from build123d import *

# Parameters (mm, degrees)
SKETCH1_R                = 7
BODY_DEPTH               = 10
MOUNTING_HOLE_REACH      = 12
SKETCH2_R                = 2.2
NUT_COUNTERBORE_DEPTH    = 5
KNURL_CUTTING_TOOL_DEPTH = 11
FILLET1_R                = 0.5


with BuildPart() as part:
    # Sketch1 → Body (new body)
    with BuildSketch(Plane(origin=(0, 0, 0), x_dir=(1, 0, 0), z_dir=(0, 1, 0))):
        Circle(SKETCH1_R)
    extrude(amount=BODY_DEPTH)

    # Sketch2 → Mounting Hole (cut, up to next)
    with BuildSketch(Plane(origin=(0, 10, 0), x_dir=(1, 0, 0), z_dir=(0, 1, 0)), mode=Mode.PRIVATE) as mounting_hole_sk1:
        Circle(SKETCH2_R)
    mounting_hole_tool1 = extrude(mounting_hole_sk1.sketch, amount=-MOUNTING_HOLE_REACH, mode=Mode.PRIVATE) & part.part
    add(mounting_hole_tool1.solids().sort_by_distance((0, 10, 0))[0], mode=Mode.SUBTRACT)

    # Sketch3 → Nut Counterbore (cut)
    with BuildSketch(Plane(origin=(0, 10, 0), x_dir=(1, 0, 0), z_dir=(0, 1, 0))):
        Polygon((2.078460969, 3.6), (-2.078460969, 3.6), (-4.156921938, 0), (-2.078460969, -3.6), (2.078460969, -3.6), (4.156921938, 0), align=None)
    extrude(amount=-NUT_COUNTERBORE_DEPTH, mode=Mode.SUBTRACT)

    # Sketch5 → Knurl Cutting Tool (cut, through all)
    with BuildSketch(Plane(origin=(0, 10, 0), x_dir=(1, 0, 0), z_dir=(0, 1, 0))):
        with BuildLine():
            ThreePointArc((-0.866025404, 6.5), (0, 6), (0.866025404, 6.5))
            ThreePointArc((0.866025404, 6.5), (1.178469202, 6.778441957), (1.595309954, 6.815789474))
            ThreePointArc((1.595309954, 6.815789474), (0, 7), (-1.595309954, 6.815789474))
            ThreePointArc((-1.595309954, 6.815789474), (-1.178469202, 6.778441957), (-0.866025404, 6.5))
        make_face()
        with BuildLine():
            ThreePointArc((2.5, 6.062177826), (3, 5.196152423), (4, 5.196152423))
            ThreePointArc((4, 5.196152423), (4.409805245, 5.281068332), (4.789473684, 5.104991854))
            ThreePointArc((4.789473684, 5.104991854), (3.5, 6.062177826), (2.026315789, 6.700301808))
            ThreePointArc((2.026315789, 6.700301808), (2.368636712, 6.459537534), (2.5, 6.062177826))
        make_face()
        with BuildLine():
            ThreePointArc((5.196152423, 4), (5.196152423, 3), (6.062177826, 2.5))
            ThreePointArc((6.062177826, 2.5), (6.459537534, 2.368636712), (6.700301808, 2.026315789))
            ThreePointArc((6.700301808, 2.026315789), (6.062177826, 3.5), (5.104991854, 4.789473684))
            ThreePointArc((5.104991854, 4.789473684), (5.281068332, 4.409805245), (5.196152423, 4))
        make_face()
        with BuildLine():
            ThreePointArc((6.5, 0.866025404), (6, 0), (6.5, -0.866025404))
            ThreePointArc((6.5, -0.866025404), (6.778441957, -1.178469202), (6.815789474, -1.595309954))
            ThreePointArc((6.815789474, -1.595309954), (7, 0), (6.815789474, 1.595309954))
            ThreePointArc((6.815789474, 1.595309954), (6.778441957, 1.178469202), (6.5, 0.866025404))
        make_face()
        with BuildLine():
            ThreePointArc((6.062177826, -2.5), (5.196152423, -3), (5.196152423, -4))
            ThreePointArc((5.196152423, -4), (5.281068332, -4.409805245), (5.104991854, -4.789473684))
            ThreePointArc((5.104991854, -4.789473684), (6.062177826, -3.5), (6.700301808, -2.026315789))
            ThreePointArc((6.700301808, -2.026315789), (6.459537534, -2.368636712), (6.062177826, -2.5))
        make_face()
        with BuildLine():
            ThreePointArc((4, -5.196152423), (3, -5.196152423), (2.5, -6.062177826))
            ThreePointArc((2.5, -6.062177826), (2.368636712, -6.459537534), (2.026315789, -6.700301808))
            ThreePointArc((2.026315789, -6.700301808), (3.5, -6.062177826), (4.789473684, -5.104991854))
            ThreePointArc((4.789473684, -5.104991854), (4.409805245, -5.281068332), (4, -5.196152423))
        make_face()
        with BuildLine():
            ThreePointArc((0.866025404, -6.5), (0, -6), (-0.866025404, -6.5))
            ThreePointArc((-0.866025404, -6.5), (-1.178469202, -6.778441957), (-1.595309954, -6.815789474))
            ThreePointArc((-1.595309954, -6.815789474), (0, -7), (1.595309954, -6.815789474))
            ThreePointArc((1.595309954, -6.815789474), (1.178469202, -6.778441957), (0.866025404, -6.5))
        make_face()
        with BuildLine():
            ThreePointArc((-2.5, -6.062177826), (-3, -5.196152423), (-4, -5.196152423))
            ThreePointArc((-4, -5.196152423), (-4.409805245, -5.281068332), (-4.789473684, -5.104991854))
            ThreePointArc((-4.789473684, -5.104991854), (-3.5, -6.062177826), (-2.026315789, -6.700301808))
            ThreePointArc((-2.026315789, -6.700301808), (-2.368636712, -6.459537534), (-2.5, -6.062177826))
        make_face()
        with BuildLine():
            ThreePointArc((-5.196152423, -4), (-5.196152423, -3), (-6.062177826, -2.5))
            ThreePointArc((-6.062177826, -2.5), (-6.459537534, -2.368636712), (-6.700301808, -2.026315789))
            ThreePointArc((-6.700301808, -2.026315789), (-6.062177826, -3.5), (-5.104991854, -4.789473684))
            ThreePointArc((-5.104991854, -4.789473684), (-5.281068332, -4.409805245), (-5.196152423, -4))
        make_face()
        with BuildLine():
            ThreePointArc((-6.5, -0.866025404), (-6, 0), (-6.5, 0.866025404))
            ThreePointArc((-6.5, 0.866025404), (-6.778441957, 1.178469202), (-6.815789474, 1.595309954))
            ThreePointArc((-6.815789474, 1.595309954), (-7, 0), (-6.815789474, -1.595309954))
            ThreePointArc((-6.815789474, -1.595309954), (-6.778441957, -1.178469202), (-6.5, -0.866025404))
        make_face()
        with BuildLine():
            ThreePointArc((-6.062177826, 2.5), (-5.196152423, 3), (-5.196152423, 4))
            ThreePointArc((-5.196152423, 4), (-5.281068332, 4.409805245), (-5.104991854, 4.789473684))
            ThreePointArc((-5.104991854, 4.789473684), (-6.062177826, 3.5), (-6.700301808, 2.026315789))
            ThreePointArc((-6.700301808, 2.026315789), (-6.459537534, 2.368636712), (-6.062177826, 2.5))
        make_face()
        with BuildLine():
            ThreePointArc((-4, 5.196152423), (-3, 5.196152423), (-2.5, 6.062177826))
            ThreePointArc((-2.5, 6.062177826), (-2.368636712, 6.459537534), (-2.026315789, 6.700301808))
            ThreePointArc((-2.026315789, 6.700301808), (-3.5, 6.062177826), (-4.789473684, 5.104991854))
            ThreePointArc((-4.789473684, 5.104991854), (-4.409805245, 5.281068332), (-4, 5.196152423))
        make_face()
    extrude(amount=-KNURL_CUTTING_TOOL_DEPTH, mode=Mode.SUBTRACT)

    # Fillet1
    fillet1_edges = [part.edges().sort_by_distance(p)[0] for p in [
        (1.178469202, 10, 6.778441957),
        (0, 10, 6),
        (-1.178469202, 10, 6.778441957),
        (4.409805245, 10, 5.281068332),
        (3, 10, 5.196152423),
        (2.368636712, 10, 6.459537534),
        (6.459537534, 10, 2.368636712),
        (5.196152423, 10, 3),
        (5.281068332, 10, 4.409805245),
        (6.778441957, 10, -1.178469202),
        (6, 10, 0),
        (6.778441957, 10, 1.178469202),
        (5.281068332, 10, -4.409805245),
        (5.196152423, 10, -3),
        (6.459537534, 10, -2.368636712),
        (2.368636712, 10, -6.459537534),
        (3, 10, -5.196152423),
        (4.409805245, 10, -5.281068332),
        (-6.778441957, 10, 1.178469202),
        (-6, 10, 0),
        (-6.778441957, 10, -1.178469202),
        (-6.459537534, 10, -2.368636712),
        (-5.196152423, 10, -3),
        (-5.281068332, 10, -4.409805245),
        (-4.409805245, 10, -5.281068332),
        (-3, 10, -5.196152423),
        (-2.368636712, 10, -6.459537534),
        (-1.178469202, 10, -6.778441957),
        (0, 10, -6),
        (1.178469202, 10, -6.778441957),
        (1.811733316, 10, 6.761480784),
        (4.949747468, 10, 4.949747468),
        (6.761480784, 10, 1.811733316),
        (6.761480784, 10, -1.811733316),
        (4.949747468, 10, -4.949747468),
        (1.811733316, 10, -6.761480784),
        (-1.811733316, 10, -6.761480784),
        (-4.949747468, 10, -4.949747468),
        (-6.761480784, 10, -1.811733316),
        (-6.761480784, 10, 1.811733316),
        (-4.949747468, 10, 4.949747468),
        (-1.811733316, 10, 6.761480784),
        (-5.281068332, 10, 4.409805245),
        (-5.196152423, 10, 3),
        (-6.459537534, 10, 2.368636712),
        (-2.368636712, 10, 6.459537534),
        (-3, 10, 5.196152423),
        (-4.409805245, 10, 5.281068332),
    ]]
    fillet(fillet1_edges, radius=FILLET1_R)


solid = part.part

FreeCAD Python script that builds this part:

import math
import FreeCAD as App
import Part
import Sketcher
Q = App.Units.Quantity


def edges_at(feature, points):
    """Names of the edges that pass closest to the given points."""
    edges = feature.Shape.Edges
    near = lambda p: min(range(len(edges)), key=lambda i: edges[i].distToShape(Part.Vertex(*p))[0])
    return sorted({f"Edge{near(p) + 1}" for p in points})

doc = App.newDocument("Part")
body = doc.addObject("PartDesign::Body", "Body")

# Sketch on XZ plane
sketch1 = body.newObject("Sketcher::SketchObject", "Sketch")
sketch1.AttachmentSupport = (doc.getObject("XZ_Plane"), [""])
sketch1.MapMode = "FlatFace"
sketch1.addGeometry(Part.Circle(App.Vector(0, 0, 0), App.Vector(0, 0, 1), 7), False)
sketch1.addConstraint([
    Sketcher.Constraint("Coincident", 0, 3, -1, 1),
    Sketcher.Constraint("Diameter", 0, 14.0),
])
pad1 = body.newObject("PartDesign::Pad", "Pad")
pad1.Profile = sketch1
pad1.Length = 10
pad1.Reversed = True

# Sketch on XZ plane
sketch2 = body.newObject("Sketcher::SketchObject", "Sketch001")
sketch2.AttachmentSupport = (doc.getObject("XZ_Plane"), [""])
sketch2.MapMode = "FlatFace"
sketch2.AttachmentOffset = App.Placement(App.Vector(0, 0, -10), App.Rotation())
sketch2.addGeometry(Part.Circle(App.Vector(0, 0, 0), App.Vector(0, 0, 1), 2.2), False)
sketch2.addConstraint([
    Sketcher.Constraint("Coincident", 0, 3, -1, 1),
    Sketcher.Constraint("Diameter", 0, 4.4),
])
pocket1 = body.newObject("PartDesign::Pocket", "Pocket")
pocket1.Profile = sketch2
pocket1.Type = "UpToFirst"
pocket1.Reversed = True

# Sketch on XZ plane
sketch3 = body.newObject("Sketcher::SketchObject", "Sketch002")
sketch3.AttachmentSupport = (doc.getObject("XZ_Plane"), [""])
sketch3.MapMode = "FlatFace"
sketch3.AttachmentOffset = App.Placement(App.Vector(0, 0, -10), App.Rotation())
sketch3.addGeometry([
    Part.LineSegment(App.Vector(2.1, -3.6, 0), App.Vector(-2.1, -3.6, 0)),  # 0
    Part.LineSegment(App.Vector(-2.1, -3.6, 0), App.Vector(-4.2, 0, 0)),  # 1
    Part.LineSegment(App.Vector(-4.2, 0, 0), App.Vector(-2.1, 3.6, 0)),  # 2
    Part.LineSegment(App.Vector(-2.1, 3.6, 0), App.Vector(2.1, 3.6, 0)),  # 3
    Part.LineSegment(App.Vector(2.1, 3.6, 0), App.Vector(4.2, 0, 0)),  # 4
    Part.LineSegment(App.Vector(4.2, 0, 0), App.Vector(2.1, -3.6, 0)),  # 5
], False)
sketch3.addConstraint([
    Sketcher.Constraint("Coincident", 0, 2, 1, 1),
    Sketcher.Constraint("Coincident", 1, 2, 2, 1),
    Sketcher.Constraint("Coincident", 2, 2, 3, 1),
    Sketcher.Constraint("Coincident", 3, 2, 4, 1),
    Sketcher.Constraint("Coincident", 4, 2, 5, 1),
    Sketcher.Constraint("Coincident", 5, 2, 0, 1),
    Sketcher.Constraint("Horizontal", 0),
    Sketcher.Constraint("Horizontal", 3),
    Sketcher.Constraint("Symmetric", 0, 2, 3, 2, -1, 1),
    Sketcher.Constraint("Symmetric", 1, 2, 4, 2, -1, 1),
    Sketcher.Constraint("PointOnObject", 1, 2, -1),
    Sketcher.Constraint("Parallel", 2, 5),
    Sketcher.Constraint("Vertical", 0, 2, 2, 2),
    Sketcher.Constraint("Angle", 1, Q("120 deg")),
    Sketcher.Constraint("DistanceY", 0, 2, -1, 1, 3.6),
    Sketcher.Constraint("DistanceX", 0, 2, 0, 1, 4.156922),
])
pocket2 = body.newObject("PartDesign::Pocket", "Pocket001")
pocket2.Profile = sketch3
pocket2.Length = 5
pocket2.Reversed = True

# Sketch on XZ plane
sketch4 = body.newObject("Sketcher::SketchObject", "Sketch003")
sketch4.AttachmentSupport = (doc.getObject("XZ_Plane"), [""])
sketch4.MapMode = "FlatFace"
sketch4.AttachmentOffset = App.Placement(App.Vector(0, 0, -10), App.Rotation())
sketch4.addGeometry([
    Part.ArcOfCircle(Part.Circle(App.Vector(0, -7, 0), App.Vector(0, 0, 1), 1), math.radians(30), math.radians(150)),  # 0
    Part.ArcOfCircle(Part.Circle(App.Vector(1.4, -6.2, 0), App.Vector(0, 0, 1), 0.7), math.radians(-150), math.radians(-77)),  # 1
    Part.ArcOfCircle(Part.Circle(App.Vector(0, 0, 0), App.Vector(0, 0, 1), 7), math.radians(-103), math.radians(-77)),  # 2
    Part.ArcOfCircle(Part.Circle(App.Vector(-1.4, -6.2, 0), App.Vector(0, 0, 1), 0.7), math.radians(-103), math.radians(-30)),  # 3
    Part.ArcOfCircle(Part.Circle(App.Vector(3.5, -6.1, 0), App.Vector(0, 0, 1), 1), math.radians(60), math.radians(180)),  # 4
    Part.ArcOfCircle(Part.Circle(App.Vector(4.3, -4.6, 0), App.Vector(0, 0, 1), 0.7), math.radians(-120), math.radians(-47)),  # 5
    Part.ArcOfCircle(Part.Circle(App.Vector(0, 0, 0), App.Vector(0, 0, 1), 7), math.radians(-73), math.radians(-47)),  # 6
    Part.ArcOfCircle(Part.Circle(App.Vector(1.8, -6.1, 0), App.Vector(0, 0, 1), 0.7), math.radians(-73), math.radians(0)),  # 7
    Part.ArcOfCircle(Part.Circle(App.Vector(6.1, -3.5, 0), App.Vector(0, 0, 1), 1), math.radians(90), math.radians(210)),  # 8
    Part.ArcOfCircle(Part.Circle(App.Vector(6.1, -1.8, 0), App.Vector(0, 0, 1), 0.7), math.radians(-90), math.radians(-17)),  # 9
    Part.ArcOfCircle(Part.Circle(App.Vector(0, 0, 0), App.Vector(0, 0, 1), 7), math.radians(-43), math.radians(-17)),  # 10
    Part.ArcOfCircle(Part.Circle(App.Vector(4.6, -4.3, 0), App.Vector(0, 0, 1), 0.7), math.radians(-43), math.radians(30)),  # 11
    Part.ArcOfCircle(Part.Circle(App.Vector(7, 0, 0), App.Vector(0, 0, 1), 1), math.radians(120), math.radians(240)),  # 12
    Part.ArcOfCircle(Part.Circle(App.Vector(6.2, 1.4, 0), App.Vector(0, 0, 1), 0.7), math.radians(-60), math.radians(13)),  # 13
    Part.ArcOfCircle(Part.Circle(App.Vector(0, 0, 0), App.Vector(0, 0, 1), 7), math.radians(-13), math.radians(13)),  # 14
    Part.ArcOfCircle(Part.Circle(App.Vector(6.2, -1.4, 0), App.Vector(0, 0, 1), 0.7), math.radians(-13), math.radians(60)),  # 15
    Part.ArcOfCircle(Part.Circle(App.Vector(6.1, 3.5, 0), App.Vector(0, 0, 1), 1), math.radians(150), math.radians(270)),  # 16
    Part.ArcOfCircle(Part.Circle(App.Vector(4.6, 4.3, 0), App.Vector(0, 0, 1), 0.7), math.radians(-30), math.radians(43)),  # 17
    Part.ArcOfCircle(Part.Circle(App.Vector(0, 0, 0), App.Vector(0, 0, 1), 7), math.radians(17), math.radians(43)),  # 18
    Part.ArcOfCircle(Part.Circle(App.Vector(6.1, 1.8, 0), App.Vector(0, 0, 1), 0.7), math.radians(17), math.radians(90)),  # 19
    Part.ArcOfCircle(Part.Circle(App.Vector(3.5, 6.1, 0), App.Vector(0, 0, 1), 1), math.radians(-180), math.radians(-60)),  # 20
    Part.ArcOfCircle(Part.Circle(App.Vector(1.8, 6.1, 0), App.Vector(0, 0, 1), 0.7), math.radians(0), math.radians(73)),  # 21
    Part.ArcOfCircle(Part.Circle(App.Vector(0, 0, 0), App.Vector(0, 0, 1), 7), math.radians(47), math.radians(73)),  # 22
    Part.ArcOfCircle(Part.Circle(App.Vector(4.3, 4.6, 0), App.Vector(0, 0, 1), 0.7), math.radians(47), math.radians(120)),  # 23
    Part.ArcOfCircle(Part.Circle(App.Vector(0, 7, 0), App.Vector(0, 0, 1), 1), math.radians(-150), math.radians(-30)),  # 24
    Part.ArcOfCircle(Part.Circle(App.Vector(-1.4, 6.2, 0), App.Vector(0, 0, 1), 0.7), math.radians(30), math.radians(103)),  # 25
    Part.ArcOfCircle(Part.Circle(App.Vector(0, 0, 0), App.Vector(0, 0, 1), 7), math.radians(77), math.radians(103)),  # 26
    Part.ArcOfCircle(Part.Circle(App.Vector(1.4, 6.2, 0), App.Vector(0, 0, 1), 0.7), math.radians(77), math.radians(150)),  # 27
    Part.ArcOfCircle(Part.Circle(App.Vector(-3.5, 6.1, 0), App.Vector(0, 0, 1), 1), math.radians(-120), math.radians(0)),  # 28
    Part.ArcOfCircle(Part.Circle(App.Vector(-4.3, 4.6, 0), App.Vector(0, 0, 1), 0.7), math.radians(60), math.radians(133)),  # 29
    Part.ArcOfCircle(Part.Circle(App.Vector(0, 0, 0), App.Vector(0, 0, 1), 7), math.radians(107), math.radians(133)),  # 30
    Part.ArcOfCircle(Part.Circle(App.Vector(-1.8, 6.1, 0), App.Vector(0, 0, 1), 0.7), math.radians(107), math.radians(180)),  # 31
    Part.ArcOfCircle(Part.Circle(App.Vector(-6.1, 3.5, 0), App.Vector(0, 0, 1), 1), math.radians(-90), math.radians(30)),  # 32
    Part.ArcOfCircle(Part.Circle(App.Vector(-6.1, 1.8, 0), App.Vector(0, 0, 1), 0.7), math.radians(90), math.radians(163)),  # 33
    Part.ArcOfCircle(Part.Circle(App.Vector(0, 0, 0), App.Vector(0, 0, 1), 7), math.radians(137), math.radians(163)),  # 34
    Part.ArcOfCircle(Part.Circle(App.Vector(-4.6, 4.3, 0), App.Vector(0, 0, 1), 0.7), math.radians(137), math.radians(210)),  # 35
    Part.ArcOfCircle(Part.Circle(App.Vector(-7, 0, 0), App.Vector(0, 0, 1), 1), math.radians(-60), math.radians(60)),  # 36
    Part.ArcOfCircle(Part.Circle(App.Vector(-6.2, -1.4, 0), App.Vector(0, 0, 1), 0.7), math.radians(120), math.radians(193)),  # 37
    Part.ArcOfCircle(Part.Circle(App.Vector(0, 0, 0), App.Vector(0, 0, 1), 7), math.radians(167), math.radians(193)),  # 38
    Part.ArcOfCircle(Part.Circle(App.Vector(-6.2, 1.4, 0), App.Vector(0, 0, 1), 0.7), math.radians(167), math.radians(240)),  # 39
    Part.ArcOfCircle(Part.Circle(App.Vector(-6.1, -3.5, 0), App.Vector(0, 0, 1), 1), math.radians(-30), math.radians(90)),  # 40
    Part.ArcOfCircle(Part.Circle(App.Vector(-4.6, -4.3, 0), App.Vector(0, 0, 1), 0.7), math.radians(150), math.radians(223)),  # 41
    Part.ArcOfCircle(Part.Circle(App.Vector(0, 0, 0), App.Vector(0, 0, 1), 7), math.radians(-163), math.radians(-137)),  # 42
    Part.ArcOfCircle(Part.Circle(App.Vector(-6.1, -1.8, 0), App.Vector(0, 0, 1), 0.7), math.radians(-163), math.radians(-90)),  # 43
    Part.ArcOfCircle(Part.Circle(App.Vector(-3.5, -6.1, 0), App.Vector(0, 0, 1), 1), math.radians(0), math.radians(120)),  # 44
    Part.ArcOfCircle(Part.Circle(App.Vector(-1.8, -6.1, 0), App.Vector(0, 0, 1), 0.7), math.radians(180), math.radians(253)),  # 45
    Part.ArcOfCircle(Part.Circle(App.Vector(0, 0, 0), App.Vector(0, 0, 1), 7), math.radians(-133), math.radians(-107)),  # 46
    Part.ArcOfCircle(Part.Circle(App.Vector(-4.3, -4.6, 0), App.Vector(0, 0, 1), 0.7), math.radians(-133), math.radians(-60)),  # 47
], False)
sketch4.addConstraint([
    Sketcher.Constraint("Tangent", 0, 1, 1, 1),
    Sketcher.Constraint("Tangent", 1, 2, 2, 2),
    Sketcher.Constraint("Tangent", 2, 1, 3, 1),
    Sketcher.Constraint("Tangent", 3, 2, 0, 2),
    Sketcher.Constraint("Tangent", 4, 1, 5, 1),
    Sketcher.Constraint("Tangent", 5, 2, 6, 2),
    Sketcher.Constraint("Tangent", 6, 1, 7, 1),
    Sketcher.Constraint("Tangent", 7, 2, 4, 2),
    Sketcher.Constraint("Tangent", 8, 1, 9, 1),
    Sketcher.Constraint("Tangent", 9, 2, 10, 2),
    Sketcher.Constraint("Tangent", 10, 1, 11, 1),
    Sketcher.Constraint("Tangent", 11, 2, 8, 2),
    Sketcher.Constraint("Tangent", 12, 1, 13, 1),
    Sketcher.Constraint("Tangent", 13, 2, 14, 2),
    Sketcher.Constraint("Tangent", 14, 1, 15, 1),
    Sketcher.Constraint("Tangent", 15, 2, 12, 2),
    Sketcher.Constraint("Tangent", 16, 1, 17, 1),
    Sketcher.Constraint("Tangent", 17, 2, 18, 2),
    Sketcher.Constraint("Tangent", 18, 1, 19, 1),
    Sketcher.Constraint("Tangent", 19, 2, 16, 2),
    Sketcher.Constraint("Tangent", 20, 1, 21, 1),
    Sketcher.Constraint("Tangent", 21, 2, 22, 2),
    Sketcher.Constraint("Tangent", 22, 1, 23, 1),
    Sketcher.Constraint("Tangent", 23, 2, 20, 2),
    Sketcher.Constraint("Tangent", 24, 1, 25, 1),
    Sketcher.Constraint("Tangent", 25, 2, 26, 2),
    Sketcher.Constraint("Tangent", 26, 1, 27, 1),
    Sketcher.Constraint("Tangent", 27, 2, 24, 2),
    Sketcher.Constraint("Tangent", 28, 1, 29, 1),
    Sketcher.Constraint("Tangent", 29, 2, 30, 2),
    Sketcher.Constraint("Tangent", 30, 1, 31, 1),
    Sketcher.Constraint("Tangent", 31, 2, 28, 2),
    Sketcher.Constraint("Tangent", 32, 1, 33, 1),
    Sketcher.Constraint("Tangent", 33, 2, 34, 2),
    Sketcher.Constraint("Tangent", 34, 1, 35, 1),
    Sketcher.Constraint("Tangent", 35, 2, 32, 2),
    Sketcher.Constraint("Tangent", 36, 1, 37, 1),
    Sketcher.Constraint("Tangent", 37, 2, 38, 2),
    Sketcher.Constraint("Tangent", 38, 1, 39, 1),
    Sketcher.Constraint("Tangent", 39, 2, 36, 2),
    Sketcher.Constraint("Tangent", 40, 1, 41, 1),
    Sketcher.Constraint("Tangent", 41, 2, 42, 2),
    Sketcher.Constraint("Tangent", 42, 1, 43, 1),
    Sketcher.Constraint("Tangent", 43, 2, 40, 2),
    Sketcher.Constraint("Tangent", 44, 1, 45, 1),
    Sketcher.Constraint("Tangent", 45, 2, 46, 2),
    Sketcher.Constraint("Tangent", 46, 1, 47, 1),
    Sketcher.Constraint("Tangent", 47, 2, 44, 2),
    Sketcher.Constraint("Coincident", 2, 3, -1, 1),
    Sketcher.Constraint("Coincident", 6, 3, -1, 1),
    Sketcher.Constraint("Coincident", 10, 3, -1, 1),
    Sketcher.Constraint("Coincident", 14, 3, -1, 1),
    Sketcher.Constraint("Coincident", 18, 3, -1, 1),
    Sketcher.Constraint("Coincident", 22, 3, -1, 1),
    Sketcher.Constraint("Coincident", 26, 3, -1, 1),
    Sketcher.Constraint("Coincident", 30, 3, -1, 1),
    Sketcher.Constraint("Coincident", 34, 3, -1, 1),
    Sketcher.Constraint("Coincident", 38, 3, -1, 1),
    Sketcher.Constraint("Coincident", 42, 3, -1, 1),
    Sketcher.Constraint("Coincident", 46, 3, -1, 1),
    Sketcher.Constraint("Equal", 1, 3),
    Sketcher.Constraint("Equal", 0, 4),
    Sketcher.Constraint("Equal", 3, 5),
    Sketcher.Constraint("Equal", 2, 6),
    Sketcher.Constraint("Equal", 5, 7),
    Sketcher.Constraint("Equal", 4, 8),
    Sketcher.Constraint("Equal", 7, 9),
    Sketcher.Constraint("Equal", 6, 10),
    Sketcher.Constraint("Equal", 9, 11),
    Sketcher.Constraint("Equal", 8, 12),
    Sketcher.Constraint("Equal", 11, 13),
    Sketcher.Constraint("Equal", 10, 14),
    Sketcher.Constraint("Equal", 13, 15),
    Sketcher.Constraint("Equal", 12, 16),
    Sketcher.Constraint("Equal", 15, 17),
    Sketcher.Constraint("Equal", 14, 18),
    Sketcher.Constraint("Equal", 17, 19),
    Sketcher.Constraint("Equal", 16, 20),
    Sketcher.Constraint("Equal", 19, 21),
    Sketcher.Constraint("Equal", 18, 22),
    Sketcher.Constraint("Equal", 21, 23),
    Sketcher.Constraint("Equal", 20, 24),
    Sketcher.Constraint("Equal", 23, 25),
    Sketcher.Constraint("Equal", 22, 26),
    Sketcher.Constraint("Equal", 25, 27),
    Sketcher.Constraint("Equal", 24, 28),
    Sketcher.Constraint("Equal", 27, 29),
    Sketcher.Constraint("Equal", 26, 30),
    Sketcher.Constraint("Equal", 29, 31),
    Sketcher.Constraint("Equal", 28, 32),
    Sketcher.Constraint("Equal", 31, 33),
    Sketcher.Constraint("Equal", 30, 34),
    Sketcher.Constraint("Equal", 33, 35),
    Sketcher.Constraint("Equal", 32, 36),
    Sketcher.Constraint("Equal", 35, 37),
    Sketcher.Constraint("Equal", 34, 38),
    Sketcher.Constraint("Equal", 37, 39),
    Sketcher.Constraint("Equal", 36, 40),
    Sketcher.Constraint("Equal", 39, 41),
    Sketcher.Constraint("Equal", 38, 42),
    Sketcher.Constraint("Equal", 41, 43),
    Sketcher.Constraint("Equal", 40, 44),
    Sketcher.Constraint("Equal", 43, 45),
    Sketcher.Constraint("Equal", 42, 46),
    Sketcher.Constraint("Equal", 45, 47),
    Sketcher.Constraint("Symmetric", 0, 3, 24, 3, -1, 1),
    Sketcher.Constraint("Symmetric", 4, 3, 28, 3, -1, 1),
    Sketcher.Constraint("Symmetric", 8, 3, 32, 3, -1, 1),
    Sketcher.Constraint("Symmetric", 12, 3, 36, 3, -1, 1),
    Sketcher.Constraint("Symmetric", 16, 3, 40, 3, -1, 1),
    Sketcher.Constraint("Symmetric", 20, 3, 44, 3, -1, 1),
    Sketcher.Constraint("Symmetric", 20, 3, 28, 3, -2),
    Sketcher.Constraint("Symmetric", 16, 3, 32, 3, -2),
    Sketcher.Constraint("PointOnObject", 0, 3, -2),
    Sketcher.Constraint("PointOnObject", 12, 3, -1),
    Sketcher.Constraint("Horizontal", 4, 3, 7, 3),
    Sketcher.Constraint("Vertical", 8, 3, 9, 3),
    Sketcher.Constraint("Radius", 0, 1.0),
    Sketcher.Constraint("Radius", 2, 7.0),
    Sketcher.Constraint("DistanceY", 0, 3, -1, 1, 7.0),
    Sketcher.Constraint("DistanceX", -1, 1, 12, 3, 7.0),
    Sketcher.Constraint("DistanceX", -1, 1, 4, 1, 4.0),
    Sketcher.Constraint("DistanceY", 11, 2, -1, 1, 4.0),
    Sketcher.Constraint("DistanceX", -1, 1, 4, 3, 3.5),
])
pocket3 = body.newObject("PartDesign::Pocket", "Pocket002")
pocket3.Profile = sketch4
pocket3.Type = "ThroughAll"
pocket3.Reversed = True
doc.recompute()

fillet = body.newObject("PartDesign::Fillet", "Fillet")
fillet.Base = (pocket3, edges_at(pocket3, [
    (1.178, 10, 6.778),
    (0, 10, 6),
    (-1.178, 10, 6.778),
    (4.41, 10, 5.281),
    (3, 10, 5.196),
    (2.369, 10, 6.46),
    (6.46, 10, 2.369),
    (5.196, 10, 3),
    (5.281, 10, 4.41),
    (6.778, 10, -1.178),
    (6, 10, 0),
    (6.778, 10, 1.178),
    (5.281, 10, -4.41),
    (5.196, 10, -3),
    (6.46, 10, -2.369),
    (2.369, 10, -6.46),
    (3, 10, -5.196),
    (4.41, 10, -5.281),
    (-6.778, 10, 1.178),
    (-6, 10, 0),
    (-6.778, 10, -1.178),
    (-6.46, 10, -2.369),
    (-5.196, 10, -3),
    (-5.281, 10, -4.41),
    (-4.41, 10, -5.281),
    (-3, 10, -5.196),
    (-2.369, 10, -6.46),
    (-1.178, 10, -6.778),
    (0, 10, -6),
    (1.178, 10, -6.778),
    (1.812, 10, 6.761),
    (4.95, 10, 4.95),
    (6.761, 10, 1.812),
    (6.761, 10, -1.812),
    (4.95, 10, -4.95),
    (1.812, 10, -6.761),
    (-1.812, 10, -6.761),
    (-4.95, 10, -4.95),
    (-6.761, 10, -1.812),
    (-6.761, 10, 1.812),
    (-4.95, 10, 4.95),
    (-1.812, 10, 6.761),
    (-5.281, 10, 4.41),
    (-5.196, 10, 3),
    (-6.46, 10, 2.369),
    (-2.369, 10, 6.46),
    (-3, 10, 5.196),
    (-4.41, 10, 5.281),
]))
fillet.Radius = 0.5

doc.recompute()
